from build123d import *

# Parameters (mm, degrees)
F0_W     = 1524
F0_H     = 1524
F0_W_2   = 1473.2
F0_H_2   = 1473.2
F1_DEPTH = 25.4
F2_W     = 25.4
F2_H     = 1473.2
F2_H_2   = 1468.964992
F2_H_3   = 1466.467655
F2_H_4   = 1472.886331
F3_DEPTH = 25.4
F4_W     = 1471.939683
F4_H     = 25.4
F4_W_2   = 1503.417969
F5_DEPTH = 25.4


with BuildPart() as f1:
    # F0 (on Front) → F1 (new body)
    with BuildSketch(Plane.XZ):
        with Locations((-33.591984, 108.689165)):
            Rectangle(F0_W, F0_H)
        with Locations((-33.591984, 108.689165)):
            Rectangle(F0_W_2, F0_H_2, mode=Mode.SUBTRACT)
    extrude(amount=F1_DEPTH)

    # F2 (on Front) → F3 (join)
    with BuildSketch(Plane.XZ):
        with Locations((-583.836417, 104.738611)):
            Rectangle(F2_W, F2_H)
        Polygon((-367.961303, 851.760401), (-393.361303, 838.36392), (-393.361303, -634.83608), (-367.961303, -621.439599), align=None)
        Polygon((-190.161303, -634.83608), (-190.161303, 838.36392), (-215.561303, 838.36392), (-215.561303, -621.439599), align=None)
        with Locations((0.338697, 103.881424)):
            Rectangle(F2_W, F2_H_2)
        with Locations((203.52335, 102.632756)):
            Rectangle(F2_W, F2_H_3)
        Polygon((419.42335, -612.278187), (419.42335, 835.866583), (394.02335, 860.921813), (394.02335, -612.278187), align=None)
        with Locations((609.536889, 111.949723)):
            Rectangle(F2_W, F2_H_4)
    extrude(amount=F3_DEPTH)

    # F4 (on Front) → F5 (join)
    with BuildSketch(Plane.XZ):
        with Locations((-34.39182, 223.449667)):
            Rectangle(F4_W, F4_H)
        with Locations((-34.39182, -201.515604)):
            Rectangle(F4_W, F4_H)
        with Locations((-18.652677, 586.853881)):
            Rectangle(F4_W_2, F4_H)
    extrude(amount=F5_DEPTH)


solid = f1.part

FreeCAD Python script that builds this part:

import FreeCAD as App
import Part
import Sketcher

V = App.Vector
Q = App.Units.Quantity

doc = App.newDocument("Part")
body = doc.addObject("PartDesign::Body", "Body")

# Sketch on XZ plane
sketch1 = doc.addObject("Sketcher::SketchObject", "Sketch")
body.addObject(sketch1)
sketch1.AttachmentSupport = (doc.XZ_Plane, [""])
sketch1.MapMode = "FlatFace"
sketch1.addGeometry([
    Part.LineSegment(V(-796, 871, 0), V(-796, -653, 0)),  # 0
    Part.LineSegment(V(-796, -653, 0), V(728, -653, 0)),  # 1
    Part.LineSegment(V(728, -653, 0), V(728, 871, 0)),  # 2
    Part.LineSegment(V(728, 871, 0), V(-796, 871, 0)),  # 3
    Part.LineSegment(V(703, -628, 0), V(-770, -628, 0)),  # 4
    Part.LineSegment(V(-770, -628, 0), V(-770, 845, 0)),  # 5
    Part.LineSegment(V(-770, 845, 0), V(703, 845, 0)),  # 6
    Part.LineSegment(V(703, 845, 0), V(703, -628, 0)),  # 7
], False)
sketch1.addConstraint([
    Sketcher.Constraint("Coincident", 0, 2, 1, 1),
    Sketcher.Constraint("Coincident", 1, 2, 2, 1),
    Sketcher.Constraint("Coincident", 2, 2, 3, 1),
    Sketcher.Constraint("Coincident", 3, 2, 0, 1),
    Sketcher.Constraint("Coincident", 4, 2, 5, 1),
    Sketcher.Constraint("Coincident", 5, 2, 6, 1),
    Sketcher.Constraint("Coincident", 6, 2, 7, 1),
    Sketcher.Constraint("Coincident", 7, 2, 4, 1),
    Sketcher.Constraint("Vertical", 0),
    Sketcher.Constraint("Horizontal", 1),
    Sketcher.Constraint("Vertical", 2),
    Sketcher.Constraint("Horizontal", 3),
    Sketcher.Constraint("Horizontal", 4),
    Sketcher.Constraint("Vertical", 5),
    Sketcher.Constraint("Horizontal", 6),
    Sketcher.Constraint("Vertical", 7),
    Sketcher.Constraint("Equal", 3, 0),
    Sketcher.Constraint("Equal", 6, 5),
    Sketcher.Constraint("DistanceX", 1, 1, 1, 2, Q("60 in")),
    Sketcher.Constraint("DistanceX", 4, 2, 4, 1, Q("58 in")),
    Sketcher.Constraint("DistanceX", 0, 2, 4, 2, Q("1 in")),
    Sketcher.Constraint("DistanceY", 0, 2, 4, 2, Q("1 in")),
    Sketcher.Constraint("DistanceX", 0, 2, -1, 1, Q("795.591984 mm")),
    Sketcher.Constraint("DistanceY", 0, 2, -1, 1, Q("653.310835 mm")),
])
pad1 = doc.addObject("PartDesign::Pad", "Pad")
body.addObject(pad1)
pad1.Profile = sketch1
pad1.Length = Q("1 in")

# Sketch on XZ plane
sketch2 = doc.addObject("Sketcher::SketchObject", "Sketch001")
body.addObject(sketch2)
sketch2.AttachmentSupport = (doc.XZ_Plane, [""])
sketch2.MapMode = "FlatFace"
sketch2.addGeometry([
    Part.LineSegment(V(-597, 841, 0), V(-597, -632, 0)),  # 0
    Part.LineSegment(V(-597, -632, 0), V(-571, -632, 0)),  # 1
    Part.LineSegment(V(-571, -632, 0), V(-571, 841, 0)),  # 2
    Part.LineSegment(V(-571, 841, 0), V(-597, 841, 0)),  # 3
    Part.LineSegment(V(-368, 852, 0), V(-393, 838, 0)),  # 4
    Part.LineSegment(V(-393, 838, 0), V(-393, -635, 0)),  # 5
    Part.LineSegment(V(-393, -635, 0), V(-368, -621, 0)),  # 6
    Part.LineSegment(V(-368, -621, 0), V(-368, 852, 0)),  # 7
    Part.LineSegment(V(-190, -635, 0), V(-190, 838, 0)),  # 8
    Part.LineSegment(V(-190, 838, 0), V(-216, 838, 0)),  # 9
    Part.LineSegment(V(-216, 838, 0), V(-216, -621, 0)),  # 10
    Part.LineSegment(V(-216, -621, 0), V(-190, -635, 0)),  # 11
    Part.LineSegment(V(-12, 838, 0), V(-12, -631, 0)),  # 12
    Part.LineSegment(V(-12, -631, 0), V(13, -631, 0)),  # 13
    Part.LineSegment(V(13, -631, 0), V(13, 838, 0)),  # 14
    Part.LineSegment(V(13, 838, 0), V(-12, 838, 0)),  # 15
    Part.LineSegment(V(191, 836, 0), V(191, -631, 0)),  # 16
    Part.LineSegment(V(191, -631, 0), V(216, -631, 0)),  # 17
    Part.LineSegment(V(216, -631, 0), V(216, 836, 0)),  # 18
    Part.LineSegment(V(216, 836, 0), V(191, 836, 0)),  # 19
    Part.LineSegment(V(419, -612, 0), V(419, 836, 0)),  # 20
    Part.LineSegment(V(419, 836, 0), V(394, 861, 0)),  # 21
    Part.LineSegment(V(394, 861, 0), V(394, -612, 0)),  # 22
    Part.LineSegment(V(394, -612, 0), V(419, -612, 0)),  # 23
    Part.LineSegment(V(597, 848, 0), V(597, -624, 0)),  # 24
    Part.LineSegment(V(597, -624, 0), V(622, -624, 0)),  # 25
    Part.LineSegment(V(622, -624, 0), V(622, 848, 0)),  # 26
    Part.LineSegment(V(622, 848, 0), V(597, 848, 0)),  # 27
], False)
sketch2.addConstraint([
    Sketcher.Constraint("Coincident", 0, 2, 1, 1),
    Sketcher.Constraint("Coincident", 1, 2, 2, 1),
    Sketcher.Constraint("Coincident", 2, 2, 3, 1),
    Sketcher.Constraint("Coincident", 3, 2, 0, 1),
    Sketcher.Constraint("Coincident", 4, 2, 5, 1),
    Sketcher.Constraint("Coincident", 5, 2, 6, 1),
    Sketcher.Constraint("Coincident", 6, 2, 7, 1),
    Sketcher.Constraint("Coincident", 7, 2, 4, 1),
    Sketcher.Constraint("Coincident", 8, 2, 9, 1),
    Sketcher.Constraint("Coincident", 9, 2, 10, 1),
    Sketcher.Constraint("Coincident", 10, 2, 11, 1),
    Sketcher.Constraint("Coincident", 11, 2, 8, 1),
    Sketcher.Constraint("Coincident", 12, 2, 13, 1),
    Sketcher.Constraint("Coincident", 13, 2, 14, 1),
    Sketcher.Constraint("Coincident", 14, 2, 15, 1),
    Sketcher.Constraint("Coincident", 15, 2, 12, 1),
    Sketcher.Constraint("Coincident", 16, 2, 17, 1),
    Sketcher.Constraint("Coincident", 17, 2, 18, 1),
    Sketcher.Constraint("Coincident", 18, 2, 19, 1),
    Sketcher.Constraint("Coincident", 19, 2, 16, 1),
    Sketcher.Constraint("Coincident", 20, 2, 21, 1),
    Sketcher.Constraint("Coincident", 21, 2, 22, 1),
    Sketcher.Constraint("Coincident", 22, 2, 23, 1),
    Sketcher.Constraint("Coincident", 23, 2, 20, 1),
    Sketcher.Constraint("Coincident", 24, 2, 25, 1),
    Sketcher.Constraint("Coincident", 25, 2, 26, 1),
    Sketcher.Constraint("Coincident", 26, 2, 27, 1),
    Sketcher.Constraint("Coincident", 27, 2, 24, 1),
    Sketcher.Constraint("Vertical", 0),
    Sketcher.Constraint("Horizontal", 1),
    Sketcher.Constraint("Vertical", 2),
    Sketcher.Constraint("Horizontal", 3),
    Sketcher.Constraint("Vertical", 5),
    Sketcher.Constraint("Vertical", 7),
    Sketcher.Constraint("Vertical", 8),
    Sketcher.Constraint("Horizontal", 9),
    Sketcher.Constraint("Vertical", 10),
    Sketcher.Constraint("Vertical", 12),
    Sketcher.Constraint("Horizontal", 13),
    Sketcher.Constraint("Vertical", 14),
    Sketcher.Constraint("Horizontal", 15),
    Sketcher.Constraint("Vertical", 16),
    Sketcher.Constraint("Horizontal", 17),
    Sketcher.Constraint("Vertical", 18),
    Sketcher.Constraint("Horizontal", 19),
    Sketcher.Constraint("Vertical", 20),
    Sketcher.Constraint("Vertical", 22),
    Sketcher.Constraint("Horizontal", 23),
    Sketcher.Constraint("Vertical", 24),
    Sketcher.Constraint("Horizontal", 25),
    Sketcher.Constraint("Vertical", 26),
    Sketcher.Constraint("Horizontal", 27),
    Sketcher.Constraint("Parallel", 4, 6),
    Sketcher.Constraint("Horizontal", 4, 2, 8, 2),
    Sketcher.Constraint("Horizontal", 6, 2, 10, 2),
    Sketcher.Constraint("Horizontal", 5, 2, 11, 2),
    Sketcher.Constraint("Horizontal", 9, 2, 14, 2),
    Sketcher.Constraint("Horizontal", 13, 2, 16, 2),
    Sketcher.Constraint("Horizontal", 19, 2, 20, 2),
    Sketcher.Constraint("Equal", 3, 9),
    Sketcher.Constraint("Equal", 9, 13),
    Sketcher.Constraint("Equal", 15, 17),
    Sketcher.Constraint("Equal", 19, 23),
    Sketcher.Constraint("Equal", 23, 25),
    Sketcher.Constraint("Equal", 2, 5),
    Sketcher.Constraint("Equal", 8, 22),
    Sketcher.Constraint("Equal", 6, 11),
    Sketcher.Constraint("DistanceX", 1, 1, 1, 2, Q("1 in")),
    Sketcher.Constraint("DistanceY", 0, 2, 0, 1, Q("58 in")),
    Sketcher.Constraint("DistanceX", 7, 2, 8, 2, Q("7 in")),
    Sketcher.Constraint("DistanceX", 11, 2, 12, 2, Q("7 in")),
    Sketcher.Constraint("DistanceX", 18, 2, 20, 2, Q("8 in")),
    Sketcher.Constraint("DistanceY", 10, 2, 10, 1, Q("1459.803519 mm")),
    Sketcher.Constraint("DistanceY", 20, 1, 20, 2, Q("1448.14477 mm")),
    Sketcher.Constraint("DistanceY", 24, 2, 24, 1, Q("1472.886331 mm")),
    Sketcher.Constraint("DistanceY", 6, 2, -1, 1, Q("621.439599 mm")),
    Sketcher.Constraint("DistanceY", 12, 2, 12, 1, Q("1468.964992 mm")),
    Sketcher.Constraint("DistanceY", 16, 2, 16, 1, Q("1466.467655 mm")),
    Sketcher.Constraint("DistanceY", 0, 2, -1, 1, Q("631.861389 mm")),
    Sketcher.Constraint("DistanceX", -1, 1, 16, 2, Q("190.82335 mm")),
    Sketcher.Constraint("DistanceX", -1, 1, 24, 2, Q("596.836889 mm")),
    Sketcher.Constraint("DistanceY", -1, 1, 26, 2, Q("848.392889 mm")),
    Sketcher.Constraint("DistanceX", 0, 2, -1, 1, Q("596.536417 mm")),
    Sketcher.Constraint("DistanceX", 4, 2, -1, 1, Q("393.361303 mm")),
])
pad2 = doc.addObject("PartDesign::Pad", "Pad001")
body.addObject(pad2)
pad2.Profile = sketch2
pad2.Length = Q("1 in")

# Sketch on XZ plane
sketch3 = doc.addObject("Sketcher::SketchObject", "Sketch002")
body.addObject(sketch3)
sketch3.AttachmentSupport = (doc.XZ_Plane, [""])
sketch3.MapMode = "FlatFace"
sketch3.addGeometry([
    Part.LineSegment(V(-770, 236, 0), V(-770, 211, 0)),  # 0
    Part.LineSegment(V(-770, 211, 0), V(702, 211, 0)),  # 1
    Part.LineSegment(V(702, 211, 0), V(702, 236, 0)),  # 2
    Part.LineSegment(V(702, 236, 0), V(-770, 236, 0)),  # 3
    Part.LineSegment(V(-770, -189, 0), V(-770, -214, 0)),  # 4
    Part.LineSegment(V(-770, -214, 0), V(702, -214, 0)),  # 5
    Part.LineSegment(V(702, -214, 0), V(702, -189, 0)),  # 6
    Part.LineSegment(V(702, -189, 0), V(-770, -189, 0)),  # 7
    Part.LineSegment(V(-770, 600, 0), V(-770, 574, 0)),  # 8
    Part.LineSegment(V(-770, 574, 0), V(733, 574, 0)),  # 9
    Part.LineSegment(V(733, 574, 0), V(733, 600, 0)),  # 10
    Part.LineSegment(V(733, 600, 0), V(-770, 600, 0)),  # 11
], False)
sketch3.addConstraint([
    Sketcher.Constraint("Coincident", 0, 2, 1, 1),
    Sketcher.Constraint("Coincident", 1, 2, 2, 1),
    Sketcher.Constraint("Coincident", 2, 2, 3, 1),
    Sketcher.Constraint("Coincident", 3, 2, 0, 1),
    Sketcher.Constraint("Coincident", 4, 2, 5, 1),
    Sketcher.Constraint("Coincident", 5, 2, 6, 1),
    Sketcher.Constraint("Coincident", 6, 2, 7, 1),
    Sketcher.Constraint("Coincident", 7, 2, 4, 1),
    Sketcher.Constraint("Coincident", 8, 2, 9, 1),
    Sketcher.Constraint("Coincident", 9, 2, 10, 1),
    Sketcher.Constraint("Coincident", 10, 2, 11, 1),
    Sketcher.Constraint("Coincident", 11, 2, 8, 1),
    Sketcher.Constraint("Vertical", 0),
    Sketcher.Constraint("Horizontal", 1),
    Sketcher.Constraint("Vertical", 2),
    Sketcher.Constraint("Horizontal", 3),
    Sketcher.Constraint("Vertical", 4),
    Sketcher.Constraint("Horizontal", 5),
    Sketcher.Constraint("Vertical", 6),
    Sketcher.Constraint("Horizontal", 7),
    Sketcher.Constraint("Vertical", 8),
    Sketcher.Constraint("Horizontal", 9),
    Sketcher.Constraint("Vertical", 10),
    Sketcher.Constraint("Horizontal", 11),
    Sketcher.Constraint("Vertical", 3, 2, 4, 2),
    Sketcher.Constraint("Vertical", 2, 2, 5, 2),
    Sketcher.Constraint("Vertical", 7, 2, 8, 2),
    Sketcher.Constraint("Equal", 2, 4),
    Sketcher.Constraint("Equal", 6, 8),
    Sketcher.Constraint("DistanceY", 0, 2, 0, 1, Q("1 in")),
    Sketcher.Constraint("DistanceX", 9, 1, 9, 2, Q("1503.417969 mm")),
    Sketcher.Constraint("DistanceX", 1, 1, 1, 2, Q("1471.939683 mm")),
    Sketcher.Constraint("DistanceX", 0, 2, -1, 1, Q("770.361661 mm")),
    Sketcher.Constraint("DistanceY", -1, 1, 8, 2, Q("574.153881 mm")),
    Sketcher.Constraint("DistanceY", 4, 2, 0, 2, Q("424.965271 mm")),
    Sketcher.Constraint("DistanceY", -1, 1, 0, 2, Q("210.749667 mm")),
])
pad3 = doc.addObject("PartDesign::Pad", "Pad002")
body.addObject(pad3)
pad3.Profile = sketch3
pad3.Length = Q("1 in")

doc.recompute()
